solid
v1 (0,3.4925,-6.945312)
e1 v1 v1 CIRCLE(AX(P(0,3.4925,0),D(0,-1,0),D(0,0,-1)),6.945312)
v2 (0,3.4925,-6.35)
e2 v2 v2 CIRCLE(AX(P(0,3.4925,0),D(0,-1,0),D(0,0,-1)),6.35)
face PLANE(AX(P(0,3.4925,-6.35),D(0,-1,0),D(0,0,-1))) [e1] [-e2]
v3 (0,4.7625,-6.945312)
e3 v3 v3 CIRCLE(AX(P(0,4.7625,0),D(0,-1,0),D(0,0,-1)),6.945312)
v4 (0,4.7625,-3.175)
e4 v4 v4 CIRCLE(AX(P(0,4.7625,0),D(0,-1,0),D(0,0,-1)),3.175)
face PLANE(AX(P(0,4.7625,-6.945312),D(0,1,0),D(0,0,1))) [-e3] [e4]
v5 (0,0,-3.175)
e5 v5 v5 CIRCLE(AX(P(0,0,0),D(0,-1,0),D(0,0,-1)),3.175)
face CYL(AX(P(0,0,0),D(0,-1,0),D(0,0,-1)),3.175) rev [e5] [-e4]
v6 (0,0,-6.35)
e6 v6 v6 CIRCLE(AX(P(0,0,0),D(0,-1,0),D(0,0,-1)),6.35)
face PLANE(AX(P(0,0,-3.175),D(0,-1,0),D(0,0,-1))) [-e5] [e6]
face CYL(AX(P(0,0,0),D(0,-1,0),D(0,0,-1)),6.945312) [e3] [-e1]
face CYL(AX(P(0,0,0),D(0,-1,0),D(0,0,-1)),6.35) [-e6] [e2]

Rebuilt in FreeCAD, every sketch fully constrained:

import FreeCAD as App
import Part
import Sketcher
Q = App.Units.Quantity

doc = App.newDocument("Part")
body = doc.addObject("PartDesign::Body", "Body")

sketch1 = body.newObject("Sketcher::SketchObject", "Sketch")
sketch1.AttachmentSupport = (doc.getObject("YZ_Plane"), [""])
sketch1.MapMode = "FlatFace"
sketch1.addGeometry(Part.LineSegment(App.Vector(0, -3.2, 0), App.Vector(0, -6.3, 0)), False)
sketch1.addGeometry(Part.LineSegment(App.Vector(0, -6.3, 0), App.Vector(3.5, -6.3, 0)), False)
sketch1.addGeometry(Part.LineSegment(App.Vector(3.5, -6.3, 0), App.Vector(3.5, -6.9, 0)), False)
sketch1.addGeometry(Part.LineSegment(App.Vector(3.5, -6.9, 0), App.Vector(4.8, -6.9, 0)), False)
sketch1.addGeometry(Part.LineSegment(App.Vector(4.8, -6.9, 0), App.Vector(4.8, -3.2, 0)), False)
sketch1.addGeometry(Part.LineSegment(App.Vector(4.8, -3.2, 0), App.Vector(0, -3.2, 0)), False)
sketch1.addConstraint(Sketcher.Constraint("Coincident", 0, 2, 1, 1))
sketch1.addConstraint(Sketcher.Constraint("Coincident", 1, 2, 2, 1))
sketch1.addConstraint(Sketcher.Constraint("Coincident", 2, 2, 3, 1))
sketch1.addConstraint(Sketcher.Constraint("Coincident", 3, 2, 4, 1))
sketch1.addConstraint(Sketcher.Constraint("Coincident", 4, 2, 5, 1))
sketch1.addConstraint(Sketcher.Constraint("Coincident", 5, 2, 0, 1))
sketch1.addConstraint(Sketcher.Constraint("Vertical", 0))
sketch1.addConstraint(Sketcher.Constraint("Horizontal", 1))
sketch1.addConstraint(Sketcher.Constraint("Vertical", 2))
sketch1.addConstraint(Sketcher.Constraint("Horizontal", 3))
sketch1.addConstraint(Sketcher.Constraint("Vertical", 4))
sketch1.addConstraint(Sketcher.Constraint("Horizontal", 5))
sketch1.addConstraint(Sketcher.Constraint("PointOnObject", 0, 2, -2))
sketch1.addConstraint(Sketcher.Constraint("DistanceX", 3, 1, 3, 2, Q("0.05 in")))
sketch1.addConstraint(Sketcher.Constraint("DistanceX", 5, 2, 5, 1, Q("0.1875 in")))
sketch1.addConstraint(Sketcher.Constraint("DistanceY", 0, 2, 0, 1, Q("0.125 in")))
sketch1.addConstraint(Sketcher.Constraint("DistanceY", 0, 2, -1, 1, Q("0.25 in")))
sketch1.addConstraint(Sketcher.Constraint("DistanceY", 2, 2, 2, 1, 0.595313))
revolution = body.newObject("PartDesign::Revolution", "Revolution")
revolution.Profile = sketch1
revolution.ReferenceAxis = (sketch1, ["H_Axis"])
revolution.Angle = 360

doc.recompute()
